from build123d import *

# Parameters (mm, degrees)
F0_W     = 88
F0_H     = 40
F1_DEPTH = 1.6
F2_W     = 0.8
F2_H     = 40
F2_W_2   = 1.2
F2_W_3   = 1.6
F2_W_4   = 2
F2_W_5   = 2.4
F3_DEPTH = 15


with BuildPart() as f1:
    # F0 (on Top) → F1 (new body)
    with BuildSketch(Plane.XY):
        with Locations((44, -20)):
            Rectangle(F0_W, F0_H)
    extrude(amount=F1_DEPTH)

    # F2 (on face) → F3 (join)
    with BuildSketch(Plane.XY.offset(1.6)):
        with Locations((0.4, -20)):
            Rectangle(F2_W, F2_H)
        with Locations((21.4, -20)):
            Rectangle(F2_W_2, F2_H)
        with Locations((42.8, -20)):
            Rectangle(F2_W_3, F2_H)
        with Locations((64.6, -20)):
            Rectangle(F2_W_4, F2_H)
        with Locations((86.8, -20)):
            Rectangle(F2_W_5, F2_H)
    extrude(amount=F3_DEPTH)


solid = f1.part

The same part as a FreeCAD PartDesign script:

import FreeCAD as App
import Part
import Sketcher

V = App.Vector
Q = App.Units.Quantity


def add_polygon(sketch, points):
    """Adds a closed chain of lines whose ends are joined by coincident constraints."""
    first, n = sketch.GeometryCount, len(points)
    for a, b in zip(points, points[1:] + points[:1]):
        sketch.addGeometry(Part.LineSegment(App.Vector(*a, 0), App.Vector(*b, 0)), False)
    for i in range(n):
        sketch.addConstraint(Sketcher.Constraint("Coincident", first + i, 2, first + (i + 1) % n, 1))

doc = App.newDocument("Part")
body = doc.addObject("PartDesign::Body", "Body")

# Sketch on XY plane
sketch1 = body.newObject("Sketcher::SketchObject", "Sketch")
sketch1.AttachmentSupport = (doc.getObject("XY_Plane"), [""])
sketch1.MapMode = "FlatFace"
add_polygon(sketch1, [(0, 0), (0, -40), (88, -40), (88, 0)])  # lines 0-3
sketch1.addConstraint(Sketcher.Constraint("Vertical", 0))
sketch1.addConstraint(Sketcher.Constraint("Horizontal", 1))
sketch1.addConstraint(Sketcher.Constraint("Vertical", 2))
sketch1.addConstraint(Sketcher.Constraint("Horizontal", 3))
sketch1.addConstraint(Sketcher.Constraint("Coincident", 3, 2, -1, 1))
sketch1.addConstraint(Sketcher.Constraint("DistanceX", 1, 1, 1, 2, Q("88 mm")))
sketch1.addConstraint(Sketcher.Constraint("DistanceY", 0, 2, 0, 1, Q("40 mm")))
pad1 = body.newObject("PartDesign::Pad", "Pad")
pad1.Profile = sketch1
pad1.Length = 1.6

# Sketch on XY plane
sketch2 = body.newObject("Sketcher::SketchObject", "Sketch001")
sketch2.AttachmentSupport = (doc.getObject("XY_Plane"), [""])
sketch2.MapMode = "FlatFace"
sketch2.AttachmentOffset = App.Placement(V(0, 0, 1.6), App.Rotation())
add_polygon(sketch2, [(0, 0), (0, -40), (0.8, -40), (0.8, 0)])  # lines 0-3
add_polygon(sketch2, [(20.8, 0), (20.8, -40), (22, -40), (22, 0)])  # lines 4-7
add_polygon(sketch2, [(42, 0), (42, -40), (43.6, -40), (43.6, 0)])  # lines 8-11
add_polygon(sketch2, [(63.6, 0), (63.6, -40), (65.6, -40), (65.6, 0)])  # lines 12-15
add_polygon(sketch2, [(85.6, 0), (85.6, -40), (88, -40), (88, 0)])  # lines 16-19
sketch2.addConstraint(Sketcher.Constraint("Vertical", 0))
sketch2.addConstraint(Sketcher.Constraint("Horizontal", 1))
sketch2.addConstraint(Sketcher.Constraint("Vertical", 2))
sketch2.addConstraint(Sketcher.Constraint("Horizontal", 3))
sketch2.addConstraint(Sketcher.Constraint("Vertical", 4))
sketch2.addConstraint(Sketcher.Constraint("Horizontal", 5))
sketch2.addConstraint(Sketcher.Constraint("Vertical", 6))
sketch2.addConstraint(Sketcher.Constraint("Horizontal", 7))
sketch2.addConstraint(Sketcher.Constraint("Vertical", 8))
sketch2.addConstraint(Sketcher.Constraint("Horizontal", 9))
sketch2.addConstraint(Sketcher.Constraint("Vertical", 10))
sketch2.addConstraint(Sketcher.Constraint("Horizontal", 11))
sketch2.addConstraint(Sketcher.Constraint("Vertical", 12))
sketch2.addConstraint(Sketcher.Constraint("Horizontal", 13))
sketch2.addConstraint(Sketcher.Constraint("Vertical", 14))
sketch2.addConstraint(Sketcher.Constraint("Horizontal", 15))
sketch2.addConstraint(Sketcher.Constraint("Vertical", 16))
sketch2.addConstraint(Sketcher.Constraint("Horizontal", 17))
sketch2.addConstraint(Sketcher.Constraint("Vertical", 18))
sketch2.addConstraint(Sketcher.Constraint("Horizontal", 19))
sketch2.addConstraint(Sketcher.Constraint("Coincident", 3, 2, -1, 1))
sketch2.addConstraint(Sketcher.Constraint("PointOnObject", 6, 2, -1))
sketch2.addConstraint(Sketcher.Constraint("PointOnObject", 10, 2, -1))
sketch2.addConstraint(Sketcher.Constraint("PointOnObject", 14, 2, -1))
sketch2.addConstraint(Sketcher.Constraint("PointOnObject", 18, 2, -1))
sketch2.addConstraint(Sketcher.Constraint("Horizontal", 1, 2, 4, 2))
sketch2.addConstraint(Sketcher.Constraint("Horizontal", 5, 2, 8, 2))
sketch2.addConstraint(Sketcher.Constraint("Horizontal", 9, 2, 12, 2))
sketch2.addConstraint(Sketcher.Constraint("Horizontal", 13, 2, 16, 2))
sketch2.addConstraint(Sketcher.Constraint("DistanceX", 13, 1, 13, 2, Q("2 mm")))
sketch2.addConstraint(Sketcher.Constraint("DistanceY", 0, 2, 0, 1, Q("40 mm")))
sketch2.addConstraint(Sketcher.Constraint("DistanceX", 1, 1, 1, 2, Q("0.8 mm")))
sketch2.addConstraint(Sketcher.Constraint("DistanceX", 5, 1, 5, 2, Q("1.2 mm")))
sketch2.addConstraint(Sketcher.Constraint("DistanceX", 9, 1, 9, 2, Q("1.6 mm")))
sketch2.addConstraint(Sketcher.Constraint("DistanceX", 17, 1, 17, 2, Q("2.4 mm")))
sketch2.addConstraint(Sketcher.Constraint("DistanceX", -1, 1, 5, 2, Q("22 mm")))
sketch2.addConstraint(Sketcher.Constraint("DistanceX", -1, 1, 8, 2, Q("42 mm")))
sketch2.addConstraint(Sketcher.Constraint("DistanceX", -1, 1, 17, 2, Q("88 mm")))
sketch2.addConstraint(Sketcher.Constraint("DistanceX", 9, 2, 12, 2, Q("20 mm")))
pad2 = body.newObject("PartDesign::Pad", "Pad001")
pad2.Profile = sketch2
pad2.Length = 15

doc.recompute()
